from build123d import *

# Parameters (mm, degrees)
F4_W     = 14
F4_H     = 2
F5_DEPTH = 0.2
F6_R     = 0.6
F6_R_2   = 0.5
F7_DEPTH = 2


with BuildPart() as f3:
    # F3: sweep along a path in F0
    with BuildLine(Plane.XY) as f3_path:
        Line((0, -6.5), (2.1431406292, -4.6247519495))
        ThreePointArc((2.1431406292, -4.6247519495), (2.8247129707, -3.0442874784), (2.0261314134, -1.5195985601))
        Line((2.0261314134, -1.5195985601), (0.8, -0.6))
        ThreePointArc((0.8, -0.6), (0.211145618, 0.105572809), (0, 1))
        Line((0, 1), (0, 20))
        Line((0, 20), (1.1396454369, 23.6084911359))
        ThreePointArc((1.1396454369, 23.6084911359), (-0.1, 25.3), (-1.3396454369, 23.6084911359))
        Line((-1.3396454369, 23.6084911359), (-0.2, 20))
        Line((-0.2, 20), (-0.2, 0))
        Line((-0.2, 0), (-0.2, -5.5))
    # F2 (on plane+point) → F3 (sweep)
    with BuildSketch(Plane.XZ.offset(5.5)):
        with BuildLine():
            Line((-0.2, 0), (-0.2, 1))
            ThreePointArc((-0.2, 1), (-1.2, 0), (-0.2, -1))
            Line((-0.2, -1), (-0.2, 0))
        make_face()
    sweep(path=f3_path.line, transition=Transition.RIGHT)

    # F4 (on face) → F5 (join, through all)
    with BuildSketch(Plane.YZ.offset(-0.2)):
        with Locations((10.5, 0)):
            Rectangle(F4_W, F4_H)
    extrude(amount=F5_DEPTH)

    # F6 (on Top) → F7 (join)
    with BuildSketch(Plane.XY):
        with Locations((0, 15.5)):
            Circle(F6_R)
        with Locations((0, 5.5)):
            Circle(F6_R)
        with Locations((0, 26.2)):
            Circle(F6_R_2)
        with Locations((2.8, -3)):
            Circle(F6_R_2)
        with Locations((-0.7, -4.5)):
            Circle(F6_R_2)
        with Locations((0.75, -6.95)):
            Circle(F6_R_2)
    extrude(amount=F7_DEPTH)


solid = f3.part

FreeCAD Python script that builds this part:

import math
import FreeCAD as App
import Part
import Sketcher
from FreeCAD import Vector


def add_polygon(sketch, points):
    """Adds a closed chain of lines whose ends are joined by coincident constraints."""
    first, n = sketch.GeometryCount, len(points)
    for a, b in zip(points, points[1:] + points[:1]):
        sketch.addGeometry(Part.LineSegment(App.Vector(*a, 0), App.Vector(*b, 0)), False)
    for i in range(n):
        sketch.addConstraint(Sketcher.Constraint("Coincident", first + i, 2, first + (i + 1) % n, 1))

doc = App.newDocument("Part")
params = doc.addObject("Spreadsheet::Sheet", "Params")
for row, (alias, value) in enumerate([
    ("sketch1_radius", "1 mm"),
    ("sketch2_radius", "2 mm"),
    ("sketch2_radius2", "1.3 mm"),
    ("sketch2_height", "19 mm"),
    ("sketch2_height2", "25.5 mm"),
    ("sketch3_width", "14 mm"),
    ("sketch3_height", "2 mm"),
    ("sketch4_diameter", "1 mm"),
    ("sketch4_diameter2", "1.2 mm"),
    ("pad2_length", "2 mm"),
], start=1):
    params.set(f"A{row}", alias)
    params.set(f"B{row}", "=" + value)
    params.setAlias(f"B{row}", alias)

body = doc.addObject("PartDesign::Body", "Body")

sketch1 = doc.addObject("Sketcher::SketchObject", "Sketch")
body.addObject(sketch1)
sketch1.AttachmentSupport = (doc.XZ_Plane, [""])
sketch1.MapMode = "FlatFace"
sketch1.AttachmentOffset = App.Placement(Vector(0, 0, 5.5), App.Rotation())
sketch1.addGeometry(Part.ArcOfCircle(Part.Circle(Vector(-0.2, 0, 0), Vector(0, 0, 1), 1), math.radians(90), math.radians(270)), False)
sketch1.addGeometry(Part.LineSegment(Vector(-0.2, -1, 0), Vector(-0.2, 1, 0)), False)
sketch1.addConstraint(Sketcher.Constraint("Coincident", 0, 1, 1, 2))
sketch1.addConstraint(Sketcher.Constraint("Coincident", 1, 1, 0, 2))
sketch1.addConstraint(Sketcher.Constraint("Vertical", 1))
sketch1.addConstraint(Sketcher.Constraint("PointOnObject", 0, 3, -1))
sketch1.addConstraint(Sketcher.Constraint("Radius", 0, 1.0))
sketch1.addConstraint(Sketcher.Constraint("DistanceX", 0, 3, -1, 1, 0.2))
sketch1.addConstraint(Sketcher.Constraint("DistanceX", 0, 1, -1, 1, 0.2))
sketch1.setExpression("Constraints[4]", "Params.sketch1_radius")

sketch2 = doc.addObject("Sketcher::SketchObject", "Sketch001")
body.addObject(sketch2)
sketch2.AttachmentSupport = (doc.XY_Plane, [""])
sketch2.MapMode = "FlatFace"
sketch2.addGeometry(Part.LineSegment(Vector(0, -6.5, 0), Vector(2.1, -4.6, 0)), False)
sketch2.addGeometry(Part.ArcOfCircle(Part.Circle(Vector(0.8, -3.1, 0), Vector(0, 0, 1), 2), math.radians(-49), math.radians(53)), False)
sketch2.addGeometry(Part.LineSegment(Vector(2, -1.5, 0), Vector(0.8, -0.6, 0)), False)
sketch2.addGeometry(Part.ArcOfCircle(Part.Circle(Vector(2, 1, 0), Vector(0, 0, 1), 2), math.radians(180), math.radians(233)), False)
sketch2.addGeometry(Part.LineSegment(Vector(0, 1, 0), Vector(0, 20, 0)), False)
sketch2.addGeometry(Part.LineSegment(Vector(0, 20, 0), Vector(1.1, 23.6, 0)), False)
sketch2.addGeometry(Part.ArcOfCircle(Part.Circle(Vector(-0.1, 24, 0), Vector(0, 0, 1), 1.3), math.radians(-18), math.radians(198)), False)
sketch2.addGeometry(Part.LineSegment(Vector(-1.3, 23.6, 0), Vector(-0.2, 20, 0)), False)
sketch2.addGeometry(Part.LineSegment(Vector(-0.2, 20, 0), Vector(-0.2, -5.5, 0)), False)
sketch2.addConstraint(Sketcher.Constraint("Tangent", 0, 2, 1, 1))
sketch2.addConstraint(Sketcher.Constraint("Tangent", 1, 2, 2, 1))
sketch2.addConstraint(Sketcher.Constraint("Tangent", 2, 2, 3, 2))
sketch2.addConstraint(Sketcher.Constraint("Tangent", 3, 1, 4, 1))
sketch2.addConstraint(Sketcher.Constraint("Coincident", 4, 2, 5, 1))
sketch2.addConstraint(Sketcher.Constraint("Tangent", 5, 2, 6, 1))
sketch2.addConstraint(Sketcher.Constraint("Tangent", 6, 2, 7, 1))
sketch2.addConstraint(Sketcher.Constraint("Coincident", 7, 2, 8, 1))
sketch2.addConstraint(Sketcher.Constraint("Vertical", 4))
sketch2.addConstraint(Sketcher.Constraint("Vertical", 8))
sketch2.addConstraint(Sketcher.Constraint("Equal", 1, 3))
sketch2.addConstraint(Sketcher.Constraint("PointOnObject", 0, 1, -2))
sketch2.addConstraint(Sketcher.Constraint("PointOnObject", 3, 1, -2))
sketch2.addConstraint(Sketcher.Constraint("Horizontal", 5, 2, 6, 2))
sketch2.addConstraint(Sketcher.Constraint("Horizontal", 4, 2, 7, 2))
sketch2.addConstraint(Sketcher.Constraint("Radius", 1, 2.0))
sketch2.addConstraint(Sketcher.Constraint("Radius", 6, 1.3))
sketch2.addConstraint(Sketcher.Constraint("DistanceY", 4, 1, 4, 2, 19.0))
sketch2.addConstraint(Sketcher.Constraint("DistanceY", 8, 2, 8, 1, 25.5))
sketch2.addConstraint(Sketcher.Constraint("DistanceY", -1, 1, 3, 3, 1.0))
sketch2.addConstraint(Sketcher.Constraint("DistanceY", -1, 1, 6, 3, 24.0))
sketch2.addConstraint(Sketcher.Constraint("DistanceY", 0, 1, 8, 2, 1.0))
sketch2.addConstraint(Sketcher.Constraint("DistanceX", 8, 2, 2, 2, 1.0))
sketch2.addConstraint(Sketcher.Constraint("DistanceX", 6, 3, -1, 1, 0.1))
sketch2.addConstraint(Sketcher.Constraint("DistanceY", 1, 3, -1, 1, 3.119599))
sketch2.setExpression("Constraints[15]", "Params.sketch2_radius")
sketch2.setExpression("Constraints[16]", "Params.sketch2_radius2")
sketch2.setExpression("Constraints[17]", "Params.sketch2_height")
sketch2.setExpression("Constraints[18]", "Params.sketch2_height2")
doc.recompute()

additivepipe = doc.addObject("PartDesign::AdditivePipe", "AdditivePipe")
body.addObject(additivepipe)
additivepipe.Profile = sketch1
additivepipe.Spine = (sketch2, ["Edge1", "Edge2", "Edge3", "Edge4", "Edge5", "Edge6", "Edge7", "Edge8", "Edge9"])
additivepipe.Transition = "Right corner"

sketch3 = doc.addObject("Sketcher::SketchObject", "Sketch002")
body.addObject(sketch3)
sketch3.AttachmentSupport = (doc.YZ_Plane, [""])
sketch3.MapMode = "FlatFace"
sketch3.AttachmentOffset = App.Placement(Vector(0, 0, -0.2), App.Rotation())
add_polygon(sketch3, [(3.5, 1), (3.5, -1), (17.5, -1), (17.5, 1)])
sketch3.addConstraint(Sketcher.Constraint("Vertical", 0))
sketch3.addConstraint(Sketcher.Constraint("Horizontal", 1))
sketch3.addConstraint(Sketcher.Constraint("Vertical", 2))
sketch3.addConstraint(Sketcher.Constraint("Horizontal", 3))
sketch3.addConstraint(Sketcher.Constraint("DistanceX", 1, 1, 1, 2, 14.0))
sketch3.addConstraint(Sketcher.Constraint("DistanceY", 0, 2, 0, 1, 2.0))
sketch3.addConstraint(Sketcher.Constraint("DistanceY", 0, 2, -1, 1, 1.0))
sketch3.addConstraint(Sketcher.Constraint("DistanceX", -1, 1, 0, 2, 3.5))
sketch3.setExpression("Constraints[8]", "Params.sketch3_width")
sketch3.setExpression("Constraints[9]", "Params.sketch3_height")
pad1 = doc.addObject("PartDesign::Pad", "Pad")
body.addObject(pad1)
pad1.Profile = sketch3
pad1.Type = "UpToLast"

sketch4 = doc.addObject("Sketcher::SketchObject", "Sketch003")
body.addObject(sketch4)
sketch4.AttachmentSupport = (doc.XY_Plane, [""])
sketch4.MapMode = "FlatFace"
sketch4.addGeometry(Part.Circle(Vector(0, 15.5, 0), Vector(0, 0, 1), 0.6), False)
sketch4.addGeometry(Part.Circle(Vector(0, 5.5, 0), Vector(0, 0, 1), 0.6), False)
sketch4.addGeometry(Part.Circle(Vector(0, 26.2, 0), Vector(0, 0, 1), 0.5), False)
sketch4.addGeometry(Part.Circle(Vector(2.8, -3, 0), Vector(0, 0, 1), 0.5), False)
sketch4.addGeometry(Part.Circle(Vector(-0.7, -4.5, 0), Vector(0, 0, 1), 0.5), False)
sketch4.addGeometry(Part.Circle(Vector(0.8, -7, 0), Vector(0, 0, 1), 0.5), False)
sketch4.addConstraint(Sketcher.Constraint("Equal", 0, 1))
sketch4.addConstraint(Sketcher.Constraint("Equal", 2, 3))
sketch4.addConstraint(Sketcher.Constraint("Equal", 3, 4))
sketch4.addConstraint(Sketcher.Constraint("Equal", 4, 5))
sketch4.addConstraint(Sketcher.Constraint("PointOnObject", 0, 3, -2))
sketch4.addConstraint(Sketcher.Constraint("PointOnObject", 1, 3, -2))
sketch4.addConstraint(Sketcher.Constraint("PointOnObject", 2, 3, -2))
sketch4.addConstraint(Sketcher.Constraint("Diameter", 2, 1.0))
sketch4.addConstraint(Sketcher.Constraint("Diameter", 0, 1.2))
sketch4.addConstraint(Sketcher.Constraint("DistanceY", 3, 3, -1, 1, 3.0))
sketch4.addConstraint(Sketcher.Constraint("DistanceY", 1, 3, 0, 3, 10.0))
sketch4.addConstraint(Sketcher.Constraint("DistanceY", 4, 3, 1, 3, 10.0))
sketch4.addConstraint(Sketcher.Constraint("DistanceY", -1, 1, 0, 3, 15.5))
sketch4.addConstraint(Sketcher.Constraint("DistanceY", -1, 1, 2, 3, 26.2))
sketch4.addConstraint(Sketcher.Constraint("DistanceX", -1, 1, 3, 3, 2.8))
sketch4.addConstraint(Sketcher.Constraint("DistanceX", 4, 3, -1, 1, 0.7))
sketch4.addConstraint(Sketcher.Constraint("DistanceX", -1, 1, 5, 3, 0.75))
sketch4.addConstraint(Sketcher.Constraint("DistanceY", 5, 3, -1, 1, 6.95))
sketch4.setExpression("Constraints[7]", "Params.sketch4_diameter")
sketch4.setExpression("Constraints[8]", "Params.sketch4_diameter2")
pad2 = doc.addObject("PartDesign::Pad", "Pad001")
body.addObject(pad2)
pad2.Profile = sketch4
pad2.setExpression("Length", "Params.pad2_length")

doc.recompute()
